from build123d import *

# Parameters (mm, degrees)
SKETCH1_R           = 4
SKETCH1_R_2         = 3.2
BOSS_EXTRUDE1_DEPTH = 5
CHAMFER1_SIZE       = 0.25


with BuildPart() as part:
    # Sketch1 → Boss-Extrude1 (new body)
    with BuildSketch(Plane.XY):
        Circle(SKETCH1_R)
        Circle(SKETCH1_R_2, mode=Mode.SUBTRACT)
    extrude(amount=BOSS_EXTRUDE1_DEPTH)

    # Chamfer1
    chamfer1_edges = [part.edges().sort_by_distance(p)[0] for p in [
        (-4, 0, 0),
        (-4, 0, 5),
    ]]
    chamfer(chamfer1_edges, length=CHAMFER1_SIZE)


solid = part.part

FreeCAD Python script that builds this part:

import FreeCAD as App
import Part
import Sketcher
from FreeCAD import Vector
Q = App.Units.Quantity


def edges_at(feature, points):
    """Names of the edges that pass closest to the given points."""
    edges = feature.Shape.Edges
    near = lambda p: min(range(len(edges)), key=lambda i: edges[i].distToShape(Part.Vertex(*p))[0])
    return sorted({f"Edge{near(p) + 1}" for p in points})

doc = App.newDocument("Part")
body = doc.addObject("PartDesign::Body", "Body")

# Sketch on XY plane
sketch1 = body.newObject("Sketcher::SketchObject", "Sketch")
sketch1.AttachmentSupport = (doc.getObject("XY_Plane"), [""])
sketch1.MapMode = "FlatFace"
sketch1.addGeometry([
    Part.Circle(Vector(0, 0, 0), Vector(0, 0, 1), 4),
    Part.Circle(Vector(0, 0, 0), Vector(0, 0, 1), 3.2),
], False)
sketch1.addConstraint([
    Sketcher.Constraint("Coincident", 0, 3, -1, 1),
    Sketcher.Constraint("Coincident", 1, 3, -1, 1),
    Sketcher.Constraint("Diameter", 0, Q("8 mm")),
    Sketcher.Constraint("Diameter", 1, Q("6.4 mm")),
])
pad1 = body.newObject("PartDesign::Pad", "Pad")
pad1.Profile = sketch1
pad1.Length = 5
doc.recompute()

chamfer = body.newObject("PartDesign::Chamfer", "Chamfer")
chamfer.Base = (pad1, edges_at(pad1, [(-4, 0, 0), (-4, 0, 5)]))
chamfer.Size = 0.25

doc.recompute()
